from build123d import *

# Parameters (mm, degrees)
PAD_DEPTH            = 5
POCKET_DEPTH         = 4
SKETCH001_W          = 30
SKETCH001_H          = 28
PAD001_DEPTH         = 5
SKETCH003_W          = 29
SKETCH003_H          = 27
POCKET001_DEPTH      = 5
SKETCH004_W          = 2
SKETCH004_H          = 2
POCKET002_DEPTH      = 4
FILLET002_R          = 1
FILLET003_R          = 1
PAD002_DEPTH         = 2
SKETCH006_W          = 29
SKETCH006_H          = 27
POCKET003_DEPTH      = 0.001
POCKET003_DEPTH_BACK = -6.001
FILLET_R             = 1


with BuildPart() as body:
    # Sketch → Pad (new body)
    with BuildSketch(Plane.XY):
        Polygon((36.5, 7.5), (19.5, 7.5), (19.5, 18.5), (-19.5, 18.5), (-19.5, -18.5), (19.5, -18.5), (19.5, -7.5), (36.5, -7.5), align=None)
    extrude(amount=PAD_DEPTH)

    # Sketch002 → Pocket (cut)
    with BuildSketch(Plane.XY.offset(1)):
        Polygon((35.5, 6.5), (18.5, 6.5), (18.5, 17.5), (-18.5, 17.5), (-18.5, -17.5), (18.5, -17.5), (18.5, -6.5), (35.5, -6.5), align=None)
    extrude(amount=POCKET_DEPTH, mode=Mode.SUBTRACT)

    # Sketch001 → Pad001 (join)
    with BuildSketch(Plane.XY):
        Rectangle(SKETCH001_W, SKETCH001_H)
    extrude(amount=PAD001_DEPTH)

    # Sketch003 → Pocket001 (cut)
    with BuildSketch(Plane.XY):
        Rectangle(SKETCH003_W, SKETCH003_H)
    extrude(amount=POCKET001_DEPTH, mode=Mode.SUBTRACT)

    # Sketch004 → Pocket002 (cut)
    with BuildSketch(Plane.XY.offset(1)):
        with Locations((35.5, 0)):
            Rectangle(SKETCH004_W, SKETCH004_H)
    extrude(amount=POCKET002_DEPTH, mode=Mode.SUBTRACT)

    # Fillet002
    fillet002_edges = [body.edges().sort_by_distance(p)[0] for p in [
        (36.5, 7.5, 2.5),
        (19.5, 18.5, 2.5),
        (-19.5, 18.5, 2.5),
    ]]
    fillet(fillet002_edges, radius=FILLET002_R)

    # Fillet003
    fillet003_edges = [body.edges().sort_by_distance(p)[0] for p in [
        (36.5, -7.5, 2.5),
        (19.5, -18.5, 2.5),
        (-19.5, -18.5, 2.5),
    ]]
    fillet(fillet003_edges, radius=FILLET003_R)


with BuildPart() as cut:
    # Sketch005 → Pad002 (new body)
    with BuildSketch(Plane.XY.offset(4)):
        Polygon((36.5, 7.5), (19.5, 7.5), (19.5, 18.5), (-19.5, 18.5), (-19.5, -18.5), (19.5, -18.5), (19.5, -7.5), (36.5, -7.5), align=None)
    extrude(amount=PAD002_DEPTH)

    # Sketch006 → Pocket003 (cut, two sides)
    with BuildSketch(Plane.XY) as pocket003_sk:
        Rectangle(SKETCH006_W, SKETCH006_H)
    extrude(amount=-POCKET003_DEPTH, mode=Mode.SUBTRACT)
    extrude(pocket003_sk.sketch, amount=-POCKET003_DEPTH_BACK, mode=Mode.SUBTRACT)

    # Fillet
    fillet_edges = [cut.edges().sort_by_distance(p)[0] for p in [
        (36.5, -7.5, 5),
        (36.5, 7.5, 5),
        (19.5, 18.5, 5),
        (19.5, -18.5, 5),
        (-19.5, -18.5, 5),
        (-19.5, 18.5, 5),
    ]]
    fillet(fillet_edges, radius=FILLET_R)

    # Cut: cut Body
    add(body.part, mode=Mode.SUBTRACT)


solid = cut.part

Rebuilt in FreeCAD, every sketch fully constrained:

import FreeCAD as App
import Part
import Sketcher
from FreeCAD import Vector
Q = App.Units.Quantity


def edges_at(feature, points):
    """Names of the edges that pass closest to the given points."""
    edges = feature.Shape.Edges
    near = lambda p: min(range(len(edges)), key=lambda i: edges[i].distToShape(Part.Vertex(*p))[0])
    return sorted({f"Edge{near(p) + 1}" for p in points})


def add_polygon(sketch, points):
    """Adds a closed chain of lines whose ends are joined by coincident constraints."""
    first, n = sketch.GeometryCount, len(points)
    for a, b in zip(points, points[1:] + points[:1]):
        sketch.addGeometry(Part.LineSegment(App.Vector(*a, 0), App.Vector(*b, 0)), False)
    for i in range(n):
        sketch.addConstraint(Sketcher.Constraint("Coincident", first + i, 2, first + (i + 1) % n, 1))

doc = App.newDocument("Part")
body = doc.addObject("PartDesign::Body", "Body")

sketch1 = body.newObject("Sketcher::SketchObject", "Sketch")
sketch1.AttachmentSupport = (doc.getObject("XY_Plane"), [""])
sketch1.MapMode = "FlatFace"
add_polygon(sketch1, [(36, 8), (20, 8), (20, 18), (-20, 18), (-20, -18), (20, -18), (20, -8), (36, -8)])
sketch1.addConstraint([
    Sketcher.Constraint("Horizontal", 0),
    Sketcher.Constraint("Vertical", 1),
    Sketcher.Constraint("Horizontal", 2),
    Sketcher.Constraint("Vertical", 3),
    Sketcher.Constraint("Horizontal", 4),
    Sketcher.Constraint("Vertical", 5),
    Sketcher.Constraint("Horizontal", 6),
    Sketcher.Constraint("Vertical", 7),
    Sketcher.Constraint("Symmetric", 1, 2, 3, 2, -1, 1),
    Sketcher.Constraint("Symmetric", 0, 2, 5, 2, -1),
    Sketcher.Constraint("DistanceX", 0, 2, 0, 1, Q("17 mm")),
    Sketcher.Constraint("DistanceX", 2, 2, 2, 1, Q("39 mm")),
    Sketcher.Constraint("DistanceY", 1, 1, 1, 2, Q("11 mm")),
    Sketcher.Constraint("DistanceY", 3, 2, 3, 1, Q("37 mm")),
])
pad1 = body.newObject("PartDesign::Pad", "Pad")
pad1.Profile = sketch1
pad1.Length = 5

sketch2 = body.newObject("Sketcher::SketchObject", "Sketch001")
sketch2.AttachmentSupport = (doc.getObject("XY_Plane"), [""])
sketch2.MapMode = "FlatFace"
sketch2.AttachmentOffset = App.Placement(Vector(0, 0, 1), App.Rotation())
add_polygon(sketch2, [(36, 6), (18, 6), (18, 18), (-18, 18), (-18, -18), (18, -18), (18, -6), (36, -6)])
sketch2.addConstraint([
    Sketcher.Constraint("Horizontal", 0),
    Sketcher.Constraint("Vertical", 1),
    Sketcher.Constraint("Horizontal", 2),
    Sketcher.Constraint("Vertical", 3),
    Sketcher.Constraint("Horizontal", 4),
    Sketcher.Constraint("Vertical", 5),
    Sketcher.Constraint("Horizontal", 6),
    Sketcher.Constraint("Vertical", 7),
    Sketcher.Constraint("Symmetric", 1, 2, 3, 2, -1, 1),
    Sketcher.Constraint("Symmetric", 0, 2, 5, 2, -1),
    Sketcher.Constraint("DistanceX", 0, 2, 0, 1, Q("17 mm")),
    Sketcher.Constraint("DistanceX", 2, 2, 2, 1, Q("37 mm")),
    Sketcher.Constraint("DistanceY", 1, 1, 1, 2, Q("11 mm")),
    Sketcher.Constraint("DistanceY", 3, 2, 3, 1, Q("35 mm")),
])
pocket1 = body.newObject("PartDesign::Pocket", "Pocket")
pocket1.Profile = sketch2
pocket1.Length = 4
pocket1.Reversed = True

sketch3 = body.newObject("Sketcher::SketchObject", "Sketch002")
sketch3.AttachmentSupport = (doc.getObject("XY_Plane"), [""])
sketch3.MapMode = "FlatFace"
add_polygon(sketch3, [(-15, 14), (-15, -14), (15, -14), (15, 14)])
sketch3.addConstraint([
    Sketcher.Constraint("Vertical", 0),
    Sketcher.Constraint("Horizontal", 1),
    Sketcher.Constraint("Vertical", 2),
    Sketcher.Constraint("Horizontal", 3),
    Sketcher.Constraint("Symmetric", 0, 2, 2, 2, -1, 1),
    Sketcher.Constraint("DistanceX", 1, 1, 1, 2, Q("30 mm")),
    Sketcher.Constraint("DistanceY", 0, 2, 0, 1, Q("28 mm")),
])
pad2 = body.newObject("PartDesign::Pad", "Pad001")
pad2.Profile = sketch3
pad2.Length = 5

sketch4 = body.newObject("Sketcher::SketchObject", "Sketch003")
sketch4.AttachmentSupport = (doc.getObject("XY_Plane"), [""])
sketch4.MapMode = "FlatFace"
add_polygon(sketch4, [(-14, 14), (-14, -14), (14, -14), (14, 14)])
sketch4.addConstraint([
    Sketcher.Constraint("Vertical", 0),
    Sketcher.Constraint("Horizontal", 1),
    Sketcher.Constraint("Vertical", 2),
    Sketcher.Constraint("Horizontal", 3),
    Sketcher.Constraint("Symmetric", 0, 2, 2, 2, -1, 1),
    Sketcher.Constraint("DistanceX", 1, 1, 1, 2, Q("29 mm")),
    Sketcher.Constraint("DistanceY", 0, 2, 0, 1, Q("27 mm")),
])
pocket2 = body.newObject("PartDesign::Pocket", "Pocket001")
pocket2.Profile = sketch4
pocket2.Length = 5
pocket2.Reversed = True

sketch5 = body.newObject("Sketcher::SketchObject", "Sketch004")
sketch5.AttachmentSupport = (doc.getObject("XY_Plane"), [""])
sketch5.MapMode = "FlatFace"
sketch5.AttachmentOffset = App.Placement(Vector(0, 0, 1), App.Rotation())
add_polygon(sketch5, [(34.5, 1), (34.5, -1), (36.5, -1), (36.5, 1)])
sketch5.addConstraint([
    Sketcher.Constraint("Vertical", 0),
    Sketcher.Constraint("Horizontal", 1),
    Sketcher.Constraint("Vertical", 2),
    Sketcher.Constraint("Horizontal", 3),
    Sketcher.Constraint("Equal", 3, 0),
    Sketcher.Constraint("DistanceX", 1, 1, 1, 2, Q("2 mm")),
    Sketcher.Constraint("DistanceY", 0, 2, -1, 1, Q("1 mm")),
    Sketcher.Constraint("DistanceX", -1, 1, 0, 2, Q("34.5 mm")),
])
pocket3 = body.newObject("PartDesign::Pocket", "Pocket002")
pocket3.Profile = sketch5
pocket3.Length = 4
pocket3.Reversed = True
doc.recompute()

fillet = body.newObject("PartDesign::Fillet", "Fillet")
fillet.Base = (pocket3, edges_at(pocket3, [(36.5, 7.5, 2.5), (19.5, 18.5, 2.5), (-19.5, 18.5, 2.5)]))
fillet.Radius = 1
doc.recompute()

fillet2 = body.newObject("PartDesign::Fillet", "Fillet001")
fillet2.Base = (fillet, edges_at(fillet, [(36.5, -7.5, 2.5), (19.5, -18.5, 2.5), (-19.5, -18.5, 2.5)]))
fillet2.Radius = 1
body2 = doc.addObject("PartDesign::Body", "Body001")

sketch6 = body2.newObject("Sketcher::SketchObject", "Sketch005")
sketch6.AttachmentSupport = (doc.getObject("XY_Plane001"), [""])
sketch6.MapMode = "FlatFace"
sketch6.AttachmentOffset = App.Placement(Vector(0, 0, 4), App.Rotation())
add_polygon(sketch6, [(36, 8), (20, 8), (20, 18), (-20, 18), (-20, -18), (20, -18), (20, -8), (36, -8)])
sketch6.addConstraint([
    Sketcher.Constraint("Horizontal", 0),
    Sketcher.Constraint("Vertical", 1),
    Sketcher.Constraint("Horizontal", 2),
    Sketcher.Constraint("Vertical", 3),
    Sketcher.Constraint("Horizontal", 4),
    Sketcher.Constraint("Vertical", 5),
    Sketcher.Constraint("Horizontal", 6),
    Sketcher.Constraint("Vertical", 7),
    Sketcher.Constraint("Symmetric", 1, 2, 3, 2, -1, 1),
    Sketcher.Constraint("Symmetric", 0, 2, 5, 2, -1),
    Sketcher.Constraint("DistanceX", 0, 2, 0, 1, Q("17 mm")),
    Sketcher.Constraint("DistanceX", 2, 2, 2, 1, Q("39 mm")),
    Sketcher.Constraint("DistanceY", 1, 1, 1, 2, Q("11 mm")),
    Sketcher.Constraint("DistanceY", 3, 2, 3, 1, Q("37 mm")),
])
pad3 = body2.newObject("PartDesign::Pad", "Pad002")
pad3.Profile = sketch6
pad3.Length = 2

sketch7 = body2.newObject("Sketcher::SketchObject", "Sketch006")
sketch7.AttachmentSupport = (doc.getObject("XY_Plane001"), [""])
sketch7.MapMode = "FlatFace"
add_polygon(sketch7, [(-14, 14), (-14, -14), (14, -14), (14, 14)])
sketch7.addConstraint([
    Sketcher.Constraint("Vertical", 0),
    Sketcher.Constraint("Horizontal", 1),
    Sketcher.Constraint("Vertical", 2),
    Sketcher.Constraint("Horizontal", 3),
    Sketcher.Constraint("Symmetric", 0, 2, 2, 2, -1, 1),
    Sketcher.Constraint("DistanceX", 1, 1, 1, 2, Q("29 mm")),
    Sketcher.Constraint("DistanceY", 0, 2, 0, 1, Q("27 mm")),
])
pocket4 = body2.newObject("PartDesign::Pocket", "Pocket003")
pocket4.Profile = sketch7
pocket4.Type = "ThroughAll"
pocket4.Midplane = True
doc.recompute()

fillet3 = body2.newObject("PartDesign::Fillet", "Fillet002")
fillet3.Base = (pocket4, edges_at(pocket4, [
    (36.5, -7.5, 5),
    (36.5, 7.5, 5),
    (19.5, 18.5, 5),
    (19.5, -18.5, 5),
    (-19.5, -18.5, 5),
    (-19.5, 18.5, 5),
]))
fillet3.Radius = 1
doc.recompute()

boolean = body2.newObject("PartDesign::Boolean", "Boolean")
boolean.Type = "Cut"
boolean.addObjects([body])

doc.recompute()
